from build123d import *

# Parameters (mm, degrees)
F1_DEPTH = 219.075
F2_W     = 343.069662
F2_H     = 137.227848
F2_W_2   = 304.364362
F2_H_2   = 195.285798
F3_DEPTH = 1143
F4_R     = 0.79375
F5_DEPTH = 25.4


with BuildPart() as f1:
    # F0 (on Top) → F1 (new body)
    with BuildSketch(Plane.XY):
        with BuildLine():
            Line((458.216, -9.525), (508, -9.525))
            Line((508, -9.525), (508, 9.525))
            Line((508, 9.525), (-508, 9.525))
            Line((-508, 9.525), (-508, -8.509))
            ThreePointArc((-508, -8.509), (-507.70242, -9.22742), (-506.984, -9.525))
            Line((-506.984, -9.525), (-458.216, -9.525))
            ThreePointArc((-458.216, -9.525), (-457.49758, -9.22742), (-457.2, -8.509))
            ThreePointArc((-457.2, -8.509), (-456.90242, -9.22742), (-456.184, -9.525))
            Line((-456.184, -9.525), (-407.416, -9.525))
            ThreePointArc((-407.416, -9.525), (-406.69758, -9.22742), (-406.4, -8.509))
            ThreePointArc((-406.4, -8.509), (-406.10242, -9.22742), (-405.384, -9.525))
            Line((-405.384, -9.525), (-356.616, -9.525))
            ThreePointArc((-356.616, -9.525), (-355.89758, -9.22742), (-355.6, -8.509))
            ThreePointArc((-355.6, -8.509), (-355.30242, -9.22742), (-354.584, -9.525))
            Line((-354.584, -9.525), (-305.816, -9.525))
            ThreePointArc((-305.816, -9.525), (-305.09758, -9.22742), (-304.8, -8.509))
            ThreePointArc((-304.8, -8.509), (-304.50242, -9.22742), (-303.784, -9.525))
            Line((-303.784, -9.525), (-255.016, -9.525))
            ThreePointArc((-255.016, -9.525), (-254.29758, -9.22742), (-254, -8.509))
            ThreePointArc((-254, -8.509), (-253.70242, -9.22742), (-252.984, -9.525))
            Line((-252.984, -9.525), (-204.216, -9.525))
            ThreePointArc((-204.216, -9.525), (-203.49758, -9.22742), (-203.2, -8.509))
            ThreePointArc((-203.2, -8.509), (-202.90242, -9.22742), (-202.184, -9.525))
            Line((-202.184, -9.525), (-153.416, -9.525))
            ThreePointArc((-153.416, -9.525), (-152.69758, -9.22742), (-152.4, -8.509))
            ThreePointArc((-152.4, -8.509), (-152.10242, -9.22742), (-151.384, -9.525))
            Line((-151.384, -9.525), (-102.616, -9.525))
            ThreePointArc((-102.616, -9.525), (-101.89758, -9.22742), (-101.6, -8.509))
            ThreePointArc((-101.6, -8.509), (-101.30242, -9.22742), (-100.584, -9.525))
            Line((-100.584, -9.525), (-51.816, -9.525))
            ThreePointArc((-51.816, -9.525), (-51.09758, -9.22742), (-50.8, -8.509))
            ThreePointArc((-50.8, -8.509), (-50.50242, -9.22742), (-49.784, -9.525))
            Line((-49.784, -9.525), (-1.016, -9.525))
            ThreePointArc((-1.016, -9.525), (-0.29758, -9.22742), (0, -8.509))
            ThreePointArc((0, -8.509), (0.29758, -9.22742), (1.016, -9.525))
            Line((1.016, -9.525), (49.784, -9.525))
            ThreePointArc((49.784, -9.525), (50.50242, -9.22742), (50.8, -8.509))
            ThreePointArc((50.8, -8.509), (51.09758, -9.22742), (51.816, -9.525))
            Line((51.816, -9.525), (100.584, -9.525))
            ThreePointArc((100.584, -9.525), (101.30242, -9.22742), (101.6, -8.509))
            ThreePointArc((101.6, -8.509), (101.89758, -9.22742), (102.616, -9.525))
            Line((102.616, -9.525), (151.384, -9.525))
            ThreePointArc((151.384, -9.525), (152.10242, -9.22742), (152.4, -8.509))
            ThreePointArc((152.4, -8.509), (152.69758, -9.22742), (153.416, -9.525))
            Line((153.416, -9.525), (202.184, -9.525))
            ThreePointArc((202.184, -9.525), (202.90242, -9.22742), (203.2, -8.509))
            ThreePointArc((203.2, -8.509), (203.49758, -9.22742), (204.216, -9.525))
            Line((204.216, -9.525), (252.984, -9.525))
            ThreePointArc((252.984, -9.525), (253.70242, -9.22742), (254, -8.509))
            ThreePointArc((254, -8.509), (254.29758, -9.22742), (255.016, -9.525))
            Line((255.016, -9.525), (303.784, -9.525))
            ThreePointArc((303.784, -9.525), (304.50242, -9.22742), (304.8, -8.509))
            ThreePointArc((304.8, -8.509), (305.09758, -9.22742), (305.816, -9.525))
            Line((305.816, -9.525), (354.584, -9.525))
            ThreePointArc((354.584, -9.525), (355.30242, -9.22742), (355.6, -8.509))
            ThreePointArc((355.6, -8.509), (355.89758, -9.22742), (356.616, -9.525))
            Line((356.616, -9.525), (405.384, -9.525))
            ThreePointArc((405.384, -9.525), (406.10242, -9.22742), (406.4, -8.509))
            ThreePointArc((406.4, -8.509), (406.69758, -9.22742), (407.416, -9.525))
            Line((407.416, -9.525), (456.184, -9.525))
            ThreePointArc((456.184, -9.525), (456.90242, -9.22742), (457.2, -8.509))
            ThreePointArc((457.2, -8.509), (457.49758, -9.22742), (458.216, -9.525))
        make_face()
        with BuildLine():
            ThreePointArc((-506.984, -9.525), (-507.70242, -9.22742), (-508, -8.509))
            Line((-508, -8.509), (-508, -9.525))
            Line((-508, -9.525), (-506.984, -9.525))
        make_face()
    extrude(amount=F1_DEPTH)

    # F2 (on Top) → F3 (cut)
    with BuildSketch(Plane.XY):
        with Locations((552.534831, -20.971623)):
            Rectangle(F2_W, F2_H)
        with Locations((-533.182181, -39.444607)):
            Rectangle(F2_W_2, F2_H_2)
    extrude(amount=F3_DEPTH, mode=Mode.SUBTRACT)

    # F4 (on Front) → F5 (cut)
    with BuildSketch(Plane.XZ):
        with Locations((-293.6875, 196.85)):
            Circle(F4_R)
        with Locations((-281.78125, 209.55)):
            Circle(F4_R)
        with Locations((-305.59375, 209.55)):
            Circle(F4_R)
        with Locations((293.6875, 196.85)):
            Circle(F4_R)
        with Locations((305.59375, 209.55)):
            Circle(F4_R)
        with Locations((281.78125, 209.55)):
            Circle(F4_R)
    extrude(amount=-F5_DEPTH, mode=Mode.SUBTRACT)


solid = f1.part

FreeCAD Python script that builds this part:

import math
import FreeCAD as App
import Part
import Sketcher
from FreeCAD import Vector
Q = App.Units.Quantity


def add_polygon(sketch, points):
    """Adds a closed chain of lines whose ends are joined by coincident constraints."""
    first, n = sketch.GeometryCount, len(points)
    for a, b in zip(points, points[1:] + points[:1]):
        sketch.addGeometry(Part.LineSegment(App.Vector(*a, 0), App.Vector(*b, 0)), False)
    for i in range(n):
        sketch.addConstraint(Sketcher.Constraint("Coincident", first + i, 2, first + (i + 1) % n, 1))

doc = App.newDocument("Part")
params = doc.addObject("Spreadsheet::Sheet", "Params")
for row, (alias, value) in enumerate([
    ("sketch1_width", "40 in"),
    ("sketch1_radius", "0.0400001 in"),
    ("sketch1_height", "0.75 in"),
    ("pad1_length", "8.625 in"),
    ("pocket1_length", "45 in"),
    ("sketch3_diameter", "0.0625 in"),
    ("pocket2_length", "1 in"),
], start=1):
    params.set(f"A{row}", alias)
    params.set(f"B{row}", "=" + value)
    params.setAlias(f"B{row}", alias)

body = doc.addObject("PartDesign::Body", "Body")

# Sketch on XY plane
sketch1 = body.newObject("Sketcher::SketchObject", "Sketch")
sketch1.AttachmentSupport = (doc.getObject("XY_Plane"), [""])
sketch1.MapMode = "FlatFace"
sketch1.addGeometry([
    Part.LineSegment(Vector(458.216, -9.525, 0), Vector(508, -9.525, 0)),  # 0
    Part.LineSegment(Vector(508, -9.525, 0), Vector(508, 9.525, 0)),  # 1
    Part.LineSegment(Vector(508, 9.525, 0), Vector(-508, 9.525, 0)),  # 2
    Part.LineSegment(Vector(-508, 9.525, 0), Vector(-508, -9.525, 0)),  # 3
    Part.LineSegment(Vector(-508, -9.525, 0), Vector(-458.216, -9.525, 0)),  # 4
    Part.ArcOfCircle(Part.Circle(Vector(-458.216002, -8.508998, 0), Vector(0, 0, 1), 1.016002), math.radians(-89.999906), math.radians(-0.000094)),  # 5
    Part.ArcOfCircle(Part.Circle(Vector(-456.183998, -8.508998, 0), Vector(0, 0, 1), 1.016002), math.radians(-179.999906), math.radians(-90.000094)),  # 6
    Part.LineSegment(Vector(-456.184, -9.525, 0), Vector(-407.416, -9.525, 0)),  # 7
    Part.ArcOfCircle(Part.Circle(Vector(-407.416002, -8.508998, 0), Vector(0, 0, 1), 1.016002), math.radians(-89.999906), math.radians(-0.000094)),  # 8
    Part.ArcOfCircle(Part.Circle(Vector(-405.383998, -8.508998, 0), Vector(0, 0, 1), 1.016002), math.radians(-179.999906), math.radians(-90.000094)),  # 9
    Part.LineSegment(Vector(-405.384, -9.525, 0), Vector(-356.616, -9.525, 0)),  # 10
    Part.ArcOfCircle(Part.Circle(Vector(-356.616002, -8.508998, 0), Vector(0, 0, 1), 1.016002), math.radians(-89.999906), math.radians(-0.000094)),  # 11
    Part.ArcOfCircle(Part.Circle(Vector(-354.583998, -8.508998, 0), Vector(0, 0, 1), 1.016002), math.radians(-179.999906), math.radians(-90.000094)),  # 12
    Part.LineSegment(Vector(-354.584, -9.525, 0), Vector(-305.816, -9.525, 0)),  # 13
    Part.ArcOfCircle(Part.Circle(Vector(-305.816002, -8.508998, 0), Vector(0, 0, 1), 1.016002), math.radians(-89.999906), math.radians(-0.000094)),  # 14
    Part.ArcOfCircle(Part.Circle(Vector(-303.783998, -8.508998, 0), Vector(0, 0, 1), 1.016002), math.radians(-179.999906), math.radians(-90.000094)),  # 15
    Part.LineSegment(Vector(-303.784, -9.525, 0), Vector(-255.016, -9.525, 0)),  # 16
    Part.ArcOfCircle(Part.Circle(Vector(-255.016002, -8.508998, 0), Vector(0, 0, 1), 1.016002), math.radians(-89.999906), math.radians(-0.000094)),  # 17
    Part.ArcOfCircle(Part.Circle(Vector(-252.983998, -8.508998, 0), Vector(0, 0, 1), 1.016002), math.radians(-179.999906), math.radians(-90.000094)),  # 18
    Part.LineSegment(Vector(-252.984, -9.525, 0), Vector(-204.216, -9.525, 0)),  # 19
    Part.ArcOfCircle(Part.Circle(Vector(-204.216002, -8.508998, 0), Vector(0, 0, 1), 1.016002), math.radians(-89.999906), math.radians(-0.000094)),  # 20
    Part.ArcOfCircle(Part.Circle(Vector(-202.183998, -8.508998, 0), Vector(0, 0, 1), 1.016002), math.radians(-179.999906), math.radians(-90.000094)),  # 21
    Part.LineSegment(Vector(-202.184, -9.525, 0), Vector(-153.416, -9.525, 0)),  # 22
    Part.ArcOfCircle(Part.Circle(Vector(-153.416002, -8.508998, 0), Vector(0, 0, 1), 1.016002), math.radians(-89.999906), math.radians(-0.000094)),  # 23
    Part.ArcOfCircle(Part.Circle(Vector(-151.383998, -8.508998, 0), Vector(0, 0, 1), 1.016002), math.radians(-179.999906), math.radians(-90.000094)),  # 24
    Part.LineSegment(Vector(-151.384, -9.525, 0), Vector(-102.616, -9.525, 0)),  # 25
    Part.ArcOfCircle(Part.Circle(Vector(-102.616002, -8.508998, 0), Vector(0, 0, 1), 1.016002), math.radians(-89.999906), math.radians(-0.000094)),  # 26
    Part.ArcOfCircle(Part.Circle(Vector(-100.583998, -8.508998, 0), Vector(0, 0, 1), 1.016002), math.radians(-179.999906), math.radians(-90.000094)),  # 27
    Part.LineSegment(Vector(-100.584, -9.525, 0), Vector(-51.816, -9.525, 0)),  # 28
    Part.ArcOfCircle(Part.Circle(Vector(-51.816002, -8.508998, 0), Vector(0, 0, 1), 1.016002), math.radians(-89.999906), math.radians(-0.000094)),  # 29
    Part.ArcOfCircle(Part.Circle(Vector(-49.783998, -8.508998, 0), Vector(0, 0, 1), 1.016002), math.radians(-179.999906), math.radians(-90.000094)),  # 30
    Part.LineSegment(Vector(-49.784, -9.525, 0), Vector(-1.016, -9.525, 0)),  # 31
    Part.ArcOfCircle(Part.Circle(Vector(-1.016002, -8.508998, 0), Vector(0, 0, 1), 1.016002), math.radians(-89.999906), math.radians(-0.000094)),  # 32
    Part.ArcOfCircle(Part.Circle(Vector(1.016002, -8.508998, 0), Vector(0, 0, 1), 1.016002), math.radians(-179.999906), math.radians(-90.000094)),  # 33
    Part.LineSegment(Vector(1.016, -9.525, 0), Vector(49.784, -9.525, 0)),  # 34
    Part.ArcOfCircle(Part.Circle(Vector(49.783998, -8.508998, 0), Vector(0, 0, 1), 1.016002), math.radians(-89.999906), math.radians(-0.000094)),  # 35
    Part.ArcOfCircle(Part.Circle(Vector(51.816002, -8.508998, 0), Vector(0, 0, 1), 1.016002), math.radians(-179.999906), math.radians(-90.000094)),  # 36
    Part.LineSegment(Vector(51.816, -9.525, 0), Vector(100.584, -9.525, 0)),  # 37
    Part.ArcOfCircle(Part.Circle(Vector(100.583998, -8.508998, 0), Vector(0, 0, 1), 1.016002), math.radians(-89.999906), math.radians(-0.000094)),  # 38
    Part.ArcOfCircle(Part.Circle(Vector(102.616002, -8.508998, 0), Vector(0, 0, 1), 1.016002), math.radians(-179.999906), math.radians(-90.000094)),  # 39
    Part.LineSegment(Vector(102.616, -9.525, 0), Vector(151.384, -9.525, 0)),  # 40
    Part.ArcOfCircle(Part.Circle(Vector(151.383998, -8.508998, 0), Vector(0, 0, 1), 1.016002), math.radians(-89.999906), math.radians(-0.000094)),  # 41
    Part.ArcOfCircle(Part.Circle(Vector(153.416002, -8.508998, 0), Vector(0, 0, 1), 1.016002), math.radians(-179.999906), math.radians(-90.000094)),  # 42
    Part.LineSegment(Vector(153.416, -9.525, 0), Vector(202.184, -9.525, 0)),  # 43
    Part.ArcOfCircle(Part.Circle(Vector(202.183998, -8.508998, 0), Vector(0, 0, 1), 1.016002), math.radians(-89.999906), math.radians(-0.000094)),  # 44
    Part.ArcOfCircle(Part.Circle(Vector(204.216002, -8.508998, 0), Vector(0, 0, 1), 1.016002), math.radians(-179.999906), math.radians(-90.000094)),  # 45
    Part.LineSegment(Vector(204.216, -9.525, 0), Vector(252.984, -9.525, 0)),  # 46
    Part.ArcOfCircle(Part.Circle(Vector(252.983998, -8.508998, 0), Vector(0, 0, 1), 1.016002), math.radians(-89.999906), math.radians(-0.000094)),  # 47
    Part.ArcOfCircle(Part.Circle(Vector(255.016002, -8.508998, 0), Vector(0, 0, 1), 1.016002), math.radians(-179.999906), math.radians(-90.000094)),  # 48
    Part.LineSegment(Vector(255.016, -9.525, 0), Vector(303.784, -9.525, 0)),  # 49
    Part.ArcOfCircle(Part.Circle(Vector(303.783998, -8.508998, 0), Vector(0, 0, 1), 1.016002), math.radians(-89.999906), math.radians(-0.000094)),  # 50
    Part.ArcOfCircle(Part.Circle(Vector(305.816002, -8.508998, 0), Vector(0, 0, 1), 1.016002), math.radians(-179.999906), math.radians(-90.000094)),  # 51
    Part.LineSegment(Vector(305.816, -9.525, 0), Vector(354.584, -9.525, 0)),  # 52
    Part.ArcOfCircle(Part.Circle(Vector(354.583998, -8.508998, 0), Vector(0, 0, 1), 1.016002), math.radians(-89.999906), math.radians(-0.000094)),  # 53
    Part.ArcOfCircle(Part.Circle(Vector(356.616002, -8.508998, 0), Vector(0, 0, 1), 1.016002), math.radians(-179.999906), math.radians(-90.000094)),  # 54
    Part.LineSegment(Vector(356.616, -9.525, 0), Vector(405.384, -9.525, 0)),  # 55
    Part.ArcOfCircle(Part.Circle(Vector(405.383998, -8.508998, 0), Vector(0, 0, 1), 1.016002), math.radians(-89.999906), math.radians(-0.000094)),  # 56
    Part.ArcOfCircle(Part.Circle(Vector(407.416002, -8.508998, 0), Vector(0, 0, 1), 1.016002), math.radians(-179.999906), math.radians(-90.000094)),  # 57
    Part.LineSegment(Vector(407.416, -9.525, 0), Vector(456.184, -9.525, 0)),  # 58
    Part.ArcOfCircle(Part.Circle(Vector(456.183998, -8.508998, 0), Vector(0, 0, 1), 1.016002), math.radians(-89.999906), math.radians(-0.000094)),  # 59
    Part.ArcOfCircle(Part.Circle(Vector(458.216002, -8.508998, 0), Vector(0, 0, 1), 1.016002), math.radians(-179.999906), math.radians(-90.000094)),  # 60
], False)
sketch1.addConstraint([
    Sketcher.Constraint("Coincident", 0, 2, 1, 1),
    Sketcher.Constraint("Coincident", 1, 2, 2, 1),
    Sketcher.Constraint("Coincident", 2, 2, 3, 1),
    Sketcher.Constraint("Coincident", 3, 2, 4, 1),
    Sketcher.Constraint("Tangent", 4, 2, 5, 1),
    Sketcher.Constraint("Coincident", 5, 2, 6, 1),
    Sketcher.Constraint("Tangent", 6, 2, 7, 1),
    Sketcher.Constraint("Tangent", 7, 2, 8, 1),
    Sketcher.Constraint("Coincident", 8, 2, 9, 1),
    Sketcher.Constraint("Tangent", 9, 2, 10, 1),
    Sketcher.Constraint("Tangent", 10, 2, 11, 1),
    Sketcher.Constraint("Coincident", 11, 2, 12, 1),
    Sketcher.Constraint("Tangent", 12, 2, 13, 1),
    Sketcher.Constraint("Tangent", 13, 2, 14, 1),
    Sketcher.Constraint("Coincident", 14, 2, 15, 1),
    Sketcher.Constraint("Tangent", 15, 2, 16, 1),
    Sketcher.Constraint("Tangent", 16, 2, 17, 1),
    Sketcher.Constraint("Coincident", 17, 2, 18, 1),
    Sketcher.Constraint("Tangent", 18, 2, 19, 1),
    Sketcher.Constraint("Tangent", 19, 2, 20, 1),
    Sketcher.Constraint("Coincident", 20, 2, 21, 1),
    Sketcher.Constraint("Tangent", 21, 2, 22, 1),
    Sketcher.Constraint("Tangent", 22, 2, 23, 1),
    Sketcher.Constraint("Coincident", 23, 2, 24, 1),
    Sketcher.Constraint("Tangent", 24, 2, 25, 1),
    Sketcher.Constraint("Tangent", 25, 2, 26, 1),
    Sketcher.Constraint("Coincident", 26, 2, 27, 1),
    Sketcher.Constraint("Tangent", 27, 2, 28, 1),
    Sketcher.Constraint("Tangent", 28, 2, 29, 1),
    Sketcher.Constraint("Coincident", 29, 2, 30, 1),
    Sketcher.Constraint("Tangent", 30, 2, 31, 1),
    Sketcher.Constraint("Tangent", 31, 2, 32, 1),
    Sketcher.Constraint("Coincident", 32, 2, 33, 1),
    Sketcher.Constraint("Tangent", 33, 2, 34, 1),
    Sketcher.Constraint("Tangent", 34, 2, 35, 1),
    Sketcher.Constraint("Coincident", 35, 2, 36, 1),
    Sketcher.Constraint("Tangent", 36, 2, 37, 1),
    Sketcher.Constraint("Tangent", 37, 2, 38, 1),
    Sketcher.Constraint("Coincident", 38, 2, 39, 1),
    Sketcher.Constraint("Tangent", 39, 2, 40, 1),
    Sketcher.Constraint("Tangent", 40, 2, 41, 1),
    Sketcher.Constraint("Coincident", 41, 2, 42, 1),
    Sketcher.Constraint("Tangent", 42, 2, 43, 1),
    Sketcher.Constraint("Tangent", 43, 2, 44, 1),
    Sketcher.Constraint("Coincident", 44, 2, 45, 1),
    Sketcher.Constraint("Tangent", 45, 2, 46, 1),
    Sketcher.Constraint("Tangent", 46, 2, 47, 1),
    Sketcher.Constraint("Coincident", 47, 2, 48, 1),
    Sketcher.Constraint("Tangent", 48, 2, 49, 1),
    Sketcher.Constraint("Tangent", 49, 2, 50, 1),
    Sketcher.Constraint("Coincident", 50, 2, 51, 1),
    Sketcher.Constraint("Tangent", 51, 2, 52, 1),
    Sketcher.Constraint("Tangent", 52, 2, 53, 1),
    Sketcher.Constraint("Coincident", 53, 2, 54, 1),
    Sketcher.Constraint("Tangent", 54, 2, 55, 1),
    Sketcher.Constraint("Tangent", 55, 2, 56, 1),
    Sketcher.Constraint("Coincident", 56, 2, 57, 1),
    Sketcher.Constraint("Tangent", 57, 2, 58, 1),
    Sketcher.Constraint("Tangent", 58, 2, 59, 1),
    Sketcher.Constraint("Coincident", 59, 2, 60, 1),
    Sketcher.Constraint("Tangent", 60, 2, 0, 1),
    Sketcher.Constraint("Horizontal", 0),
    Sketcher.Constraint("Vertical", 1),
    Sketcher.Constraint("Horizontal", 2),
    Sketcher.Constraint("Vertical", 3),
    Sketcher.Constraint("Horizontal", 4),
    Sketcher.Constraint("Horizontal", 7),
    Sketcher.Constraint("Horizontal", 10),
    Sketcher.Constraint("Horizontal", 13),
    Sketcher.Constraint("Horizontal", 16),
    Sketcher.Constraint("Horizontal", 19),
    Sketcher.Constraint("Horizontal", 22),
    Sketcher.Constraint("Horizontal", 25),
    Sketcher.Constraint("Horizontal", 28),
    Sketcher.Constraint("Horizontal", 31),
    Sketcher.Constraint("Horizontal", 34),
    Sketcher.Constraint("Horizontal", 37),
    Sketcher.Constraint("Horizontal", 40),
    Sketcher.Constraint("Horizontal", 43),
    Sketcher.Constraint("Horizontal", 46),
    Sketcher.Constraint("Horizontal", 49),
    Sketcher.Constraint("Horizontal", 52),
    Sketcher.Constraint("Horizontal", 55),
    Sketcher.Constraint("Horizontal", 58),
    Sketcher.Constraint("Equal", 5, 6),
    Sketcher.Constraint("Equal", 6, 8),
    Sketcher.Constraint("Equal", 8, 9),
    Sketcher.Constraint("Equal", 9, 11),
    Sketcher.Constraint("Equal", 11, 12),
    Sketcher.Constraint("Equal", 12, 14),
    Sketcher.Constraint("Equal", 14, 15),
    Sketcher.Constraint("Equal", 15, 17),
    Sketcher.Constraint("Equal", 17, 18),
    Sketcher.Constraint("Equal", 18, 20),
    Sketcher.Constraint("Equal", 20, 21),
    Sketcher.Constraint("Equal", 21, 23),
    Sketcher.Constraint("Equal", 23, 24),
    Sketcher.Constraint("Equal", 24, 26),
    Sketcher.Constraint("Equal", 26, 27),
    Sketcher.Constraint("Equal", 27, 29),
    Sketcher.Constraint("Equal", 29, 30),
    Sketcher.Constraint("Equal", 30, 32),
    Sketcher.Constraint("Equal", 32, 33),
    Sketcher.Constraint("Equal", 33, 35),
    Sketcher.Constraint("Equal", 35, 36),
    Sketcher.Constraint("Equal", 36, 38),
    Sketcher.Constraint("Equal", 38, 39),
    Sketcher.Constraint("Equal", 39, 41),
    Sketcher.Constraint("Equal", 41, 42),
    Sketcher.Constraint("Equal", 42, 44),
    Sketcher.Constraint("Equal", 44, 45),
    Sketcher.Constraint("Equal", 45, 47),
    Sketcher.Constraint("Equal", 47, 48),
    Sketcher.Constraint("Equal", 48, 50),
    Sketcher.Constraint("Equal", 50, 51),
    Sketcher.Constraint("Equal", 51, 53),
    Sketcher.Constraint("Equal", 53, 54),
    Sketcher.Constraint("Equal", 54, 56),
    Sketcher.Constraint("Equal", 56, 57),
    Sketcher.Constraint("Equal", 57, 59),
    Sketcher.Constraint("Equal", 59, 60),
    Sketcher.Constraint("Symmetric", 0, 2, 2, 2, -1, 1),
    Sketcher.Constraint("Symmetric", 32, 3, 33, 3, -2),
    Sketcher.Constraint("Symmetric", 29, 3, 36, 3, -2),
    Sketcher.Constraint("Symmetric", 26, 3, 39, 3, -2),
    Sketcher.Constraint("Symmetric", 23, 3, 42, 3, -2),
    Sketcher.Constraint("Symmetric", 20, 3, 45, 3, -2),
    Sketcher.Constraint("Symmetric", 17, 3, 48, 3, -2),
    Sketcher.Constraint("Symmetric", 14, 3, 51, 3, -2),
    Sketcher.Constraint("Symmetric", 11, 3, 54, 3, -2),
    Sketcher.Constraint("Symmetric", 8, 3, 57, 3, -2),
    Sketcher.Constraint("Symmetric", 5, 3, 60, 3, -2),
    Sketcher.Constraint("Horizontal", 5, 3, 6, 3),
    Sketcher.Constraint("Horizontal", 8, 3, 9, 3),
    Sketcher.Constraint("Horizontal", 11, 3, 12, 3),
    Sketcher.Constraint("Horizontal", 14, 3, 15, 3),
    Sketcher.Constraint("Horizontal", 17, 3, 18, 3),
    Sketcher.Constraint("Horizontal", 20, 3, 21, 3),
    Sketcher.Constraint("Horizontal", 23, 3, 24, 3),
    Sketcher.Constraint("Horizontal", 26, 3, 27, 3),
    Sketcher.Constraint("Horizontal", 29, 3, 30, 3),
    Sketcher.Constraint("Horizontal", 60, 3, 5, 2),
    Sketcher.Constraint("Horizontal", 5, 2, 8, 2),
    Sketcher.Constraint("Horizontal", 8, 2, 11, 2),
    Sketcher.Constraint("Horizontal", 11, 2, 14, 2),
    Sketcher.Constraint("Horizontal", 14, 2, 17, 2),
    Sketcher.Constraint("Horizontal", 17, 2, 20, 2),
    Sketcher.Constraint("Horizontal", 20, 2, 23, 2),
    Sketcher.Constraint("Horizontal", 23, 2, 26, 2),
    Sketcher.Constraint("Horizontal", 26, 2, 29, 2),
    Sketcher.Constraint("Horizontal", 29, 2, 32, 2),
    Sketcher.Constraint("Horizontal", 32, 2, 35, 2),
    Sketcher.Constraint("Horizontal", 35, 2, 38, 2),
    Sketcher.Constraint("Horizontal", 38, 2, 41, 2),
    Sketcher.Constraint("Horizontal", 41, 2, 44, 2),
    Sketcher.Constraint("Horizontal", 44, 2, 47, 2),
    Sketcher.Constraint("Horizontal", 47, 2, 50, 2),
    Sketcher.Constraint("Horizontal", 50, 2, 53, 2),
    Sketcher.Constraint("Horizontal", 53, 2, 56, 2),
    Sketcher.Constraint("Horizontal", 56, 2, 59, 2),
    Sketcher.Constraint("Equal", 7, 10),
    Sketcher.Constraint("Equal", 10, 13),
    Sketcher.Constraint("Equal", 13, 16),
    Sketcher.Constraint("Equal", 16, 19),
    Sketcher.Constraint("Equal", 19, 22),
    Sketcher.Constraint("Equal", 22, 25),
    Sketcher.Constraint("Equal", 25, 28),
    Sketcher.Constraint("Equal", 28, 31),
    Sketcher.Constraint("DistanceX", 2, 2, 2, 1, Q("40 in")),
    Sketcher.Constraint("Radius", 5, Q("0.0400001 in")),
    Sketcher.Constraint("DistanceX", 5, 2, -1, 1, Q("18 in")),
    Sketcher.Constraint("DistanceY", 1, 1, 1, 2, Q("0.75 in")),
])
sketch1.setExpression("Constraints[168]", "Params.sketch1_width")
sketch1.setExpression("Constraints[169]", "Params.sketch1_radius")
sketch1.setExpression("Constraints[171]", "Params.sketch1_height")
pad1 = body.newObject("PartDesign::Pad", "Pad")
pad1.Profile = sketch1
pad1.setExpression("Length", "Params.pad1_length")

# Sketch on XY plane
sketch2 = body.newObject("Sketcher::SketchObject", "Sketch001")
sketch2.AttachmentSupport = (doc.getObject("XY_Plane"), [""])
sketch2.MapMode = "FlatFace"
add_polygon(sketch2, [(381, 47.642301), (381, -89.585547), (724.069662, -89.585547), (724.069662, 47.642301)])  # lines 0-3
add_polygon(sketch2, [(-685.364362, 58.198292), (-685.364362, -137.087506), (-381, -137.087506), (-381, 58.198292)])  # lines 4-7
sketch2.addConstraint([
    Sketcher.Constraint("Vertical", 0),
    Sketcher.Constraint("Horizontal", 1),
    Sketcher.Constraint("Vertical", 2),
    Sketcher.Constraint("Horizontal", 3),
    Sketcher.Constraint("Vertical", 4),
    Sketcher.Constraint("Horizontal", 5),
    Sketcher.Constraint("Vertical", 6),
    Sketcher.Constraint("Horizontal", 7),
    Sketcher.Constraint("DistanceX", -1, 1, 0, 2, Q("15 in")),
    Sketcher.Constraint("DistanceX", 5, 2, -1, 1, Q("15 in")),
    Sketcher.Constraint("DistanceY", 4, 2, 4, 1, 195.285798),
    Sketcher.Constraint("DistanceX", 1, 1, 1, 2, 343.069662),
    Sketcher.Constraint("DistanceY", 0, 2, 0, 1, 137.227848),
    Sketcher.Constraint("DistanceY", -1, 1, 2, 2, 47.642301),
    Sketcher.Constraint("DistanceX", 5, 1, 5, 2, 304.364362),
    Sketcher.Constraint("DistanceY", 4, 2, 0, 2, 47.501959),
])
pocket1 = body.newObject("PartDesign::Pocket", "Pocket")
pocket1.Profile = sketch2
pocket1.setExpression("Length", "Params.pocket1_length")
pocket1.Reversed = True

# Sketch on XZ plane
sketch3 = body.newObject("Sketcher::SketchObject", "Sketch002")
sketch3.AttachmentSupport = (doc.getObject("XZ_Plane"), [""])
sketch3.MapMode = "FlatFace"
sketch3.addGeometry([
    Part.Circle(Vector(-293.6875, 196.85, 0), Vector(0, 0, 1), 0.79375),  # 0
    Part.Circle(Vector(-281.78125, 209.55, 0), Vector(0, 0, 1), 0.79375),  # 1
    Part.Circle(Vector(-305.59375, 209.55, 0), Vector(0, 0, 1), 0.79375),  # 2
    Part.Circle(Vector(293.6875, 196.85, 0), Vector(0, 0, 1), 0.79375),  # 3
    Part.Circle(Vector(305.59375, 209.55, 0), Vector(0, 0, 1), 0.79375),  # 4
    Part.Circle(Vector(281.78125, 209.55, 0), Vector(0, 0, 1), 0.79375),  # 5
], False)
sketch3.addConstraint([
    Sketcher.Constraint("Equal", 0, 1),
    Sketcher.Constraint("Equal", 1, 2),
    Sketcher.Constraint("Equal", 2, 3),
    Sketcher.Constraint("Equal", 3, 4),
    Sketcher.Constraint("Equal", 4, 5),
    Sketcher.Constraint("Symmetric", 0, 3, 3, 3, -2),
    Sketcher.Constraint("Symmetric", 2, 3, 4, 3, -2),
    Sketcher.Constraint("Symmetric", 1, 3, 5, 3, -2),
    Sketcher.Constraint("Horizontal", 1, 3, 2, 3),
    Sketcher.Constraint("Diameter", 0, Q("0.0625 in")),
    Sketcher.Constraint("DistanceY", 0, 3, 1, 3, Q("0.5 in")),
    Sketcher.Constraint("DistanceY", -1, 1, 0, 3, Q("7.75 in")),
    Sketcher.Constraint("DistanceX", 0, 3, -1, 1, Q("11.5625 in")),
    Sketcher.Constraint("DistanceX", 1, 3, -1, 1, Q("11.09375 in")),
    Sketcher.Constraint("DistanceX", 2, 3, -1, 1, Q("12.03125 in")),
])
sketch3.setExpression("Constraints[9]", "Params.sketch3_diameter")
pocket2 = body.newObject("PartDesign::Pocket", "Pocket001")
pocket2.Profile = sketch3
pocket2.setExpression("Length", "Params.pocket2_length")

doc.recompute()
